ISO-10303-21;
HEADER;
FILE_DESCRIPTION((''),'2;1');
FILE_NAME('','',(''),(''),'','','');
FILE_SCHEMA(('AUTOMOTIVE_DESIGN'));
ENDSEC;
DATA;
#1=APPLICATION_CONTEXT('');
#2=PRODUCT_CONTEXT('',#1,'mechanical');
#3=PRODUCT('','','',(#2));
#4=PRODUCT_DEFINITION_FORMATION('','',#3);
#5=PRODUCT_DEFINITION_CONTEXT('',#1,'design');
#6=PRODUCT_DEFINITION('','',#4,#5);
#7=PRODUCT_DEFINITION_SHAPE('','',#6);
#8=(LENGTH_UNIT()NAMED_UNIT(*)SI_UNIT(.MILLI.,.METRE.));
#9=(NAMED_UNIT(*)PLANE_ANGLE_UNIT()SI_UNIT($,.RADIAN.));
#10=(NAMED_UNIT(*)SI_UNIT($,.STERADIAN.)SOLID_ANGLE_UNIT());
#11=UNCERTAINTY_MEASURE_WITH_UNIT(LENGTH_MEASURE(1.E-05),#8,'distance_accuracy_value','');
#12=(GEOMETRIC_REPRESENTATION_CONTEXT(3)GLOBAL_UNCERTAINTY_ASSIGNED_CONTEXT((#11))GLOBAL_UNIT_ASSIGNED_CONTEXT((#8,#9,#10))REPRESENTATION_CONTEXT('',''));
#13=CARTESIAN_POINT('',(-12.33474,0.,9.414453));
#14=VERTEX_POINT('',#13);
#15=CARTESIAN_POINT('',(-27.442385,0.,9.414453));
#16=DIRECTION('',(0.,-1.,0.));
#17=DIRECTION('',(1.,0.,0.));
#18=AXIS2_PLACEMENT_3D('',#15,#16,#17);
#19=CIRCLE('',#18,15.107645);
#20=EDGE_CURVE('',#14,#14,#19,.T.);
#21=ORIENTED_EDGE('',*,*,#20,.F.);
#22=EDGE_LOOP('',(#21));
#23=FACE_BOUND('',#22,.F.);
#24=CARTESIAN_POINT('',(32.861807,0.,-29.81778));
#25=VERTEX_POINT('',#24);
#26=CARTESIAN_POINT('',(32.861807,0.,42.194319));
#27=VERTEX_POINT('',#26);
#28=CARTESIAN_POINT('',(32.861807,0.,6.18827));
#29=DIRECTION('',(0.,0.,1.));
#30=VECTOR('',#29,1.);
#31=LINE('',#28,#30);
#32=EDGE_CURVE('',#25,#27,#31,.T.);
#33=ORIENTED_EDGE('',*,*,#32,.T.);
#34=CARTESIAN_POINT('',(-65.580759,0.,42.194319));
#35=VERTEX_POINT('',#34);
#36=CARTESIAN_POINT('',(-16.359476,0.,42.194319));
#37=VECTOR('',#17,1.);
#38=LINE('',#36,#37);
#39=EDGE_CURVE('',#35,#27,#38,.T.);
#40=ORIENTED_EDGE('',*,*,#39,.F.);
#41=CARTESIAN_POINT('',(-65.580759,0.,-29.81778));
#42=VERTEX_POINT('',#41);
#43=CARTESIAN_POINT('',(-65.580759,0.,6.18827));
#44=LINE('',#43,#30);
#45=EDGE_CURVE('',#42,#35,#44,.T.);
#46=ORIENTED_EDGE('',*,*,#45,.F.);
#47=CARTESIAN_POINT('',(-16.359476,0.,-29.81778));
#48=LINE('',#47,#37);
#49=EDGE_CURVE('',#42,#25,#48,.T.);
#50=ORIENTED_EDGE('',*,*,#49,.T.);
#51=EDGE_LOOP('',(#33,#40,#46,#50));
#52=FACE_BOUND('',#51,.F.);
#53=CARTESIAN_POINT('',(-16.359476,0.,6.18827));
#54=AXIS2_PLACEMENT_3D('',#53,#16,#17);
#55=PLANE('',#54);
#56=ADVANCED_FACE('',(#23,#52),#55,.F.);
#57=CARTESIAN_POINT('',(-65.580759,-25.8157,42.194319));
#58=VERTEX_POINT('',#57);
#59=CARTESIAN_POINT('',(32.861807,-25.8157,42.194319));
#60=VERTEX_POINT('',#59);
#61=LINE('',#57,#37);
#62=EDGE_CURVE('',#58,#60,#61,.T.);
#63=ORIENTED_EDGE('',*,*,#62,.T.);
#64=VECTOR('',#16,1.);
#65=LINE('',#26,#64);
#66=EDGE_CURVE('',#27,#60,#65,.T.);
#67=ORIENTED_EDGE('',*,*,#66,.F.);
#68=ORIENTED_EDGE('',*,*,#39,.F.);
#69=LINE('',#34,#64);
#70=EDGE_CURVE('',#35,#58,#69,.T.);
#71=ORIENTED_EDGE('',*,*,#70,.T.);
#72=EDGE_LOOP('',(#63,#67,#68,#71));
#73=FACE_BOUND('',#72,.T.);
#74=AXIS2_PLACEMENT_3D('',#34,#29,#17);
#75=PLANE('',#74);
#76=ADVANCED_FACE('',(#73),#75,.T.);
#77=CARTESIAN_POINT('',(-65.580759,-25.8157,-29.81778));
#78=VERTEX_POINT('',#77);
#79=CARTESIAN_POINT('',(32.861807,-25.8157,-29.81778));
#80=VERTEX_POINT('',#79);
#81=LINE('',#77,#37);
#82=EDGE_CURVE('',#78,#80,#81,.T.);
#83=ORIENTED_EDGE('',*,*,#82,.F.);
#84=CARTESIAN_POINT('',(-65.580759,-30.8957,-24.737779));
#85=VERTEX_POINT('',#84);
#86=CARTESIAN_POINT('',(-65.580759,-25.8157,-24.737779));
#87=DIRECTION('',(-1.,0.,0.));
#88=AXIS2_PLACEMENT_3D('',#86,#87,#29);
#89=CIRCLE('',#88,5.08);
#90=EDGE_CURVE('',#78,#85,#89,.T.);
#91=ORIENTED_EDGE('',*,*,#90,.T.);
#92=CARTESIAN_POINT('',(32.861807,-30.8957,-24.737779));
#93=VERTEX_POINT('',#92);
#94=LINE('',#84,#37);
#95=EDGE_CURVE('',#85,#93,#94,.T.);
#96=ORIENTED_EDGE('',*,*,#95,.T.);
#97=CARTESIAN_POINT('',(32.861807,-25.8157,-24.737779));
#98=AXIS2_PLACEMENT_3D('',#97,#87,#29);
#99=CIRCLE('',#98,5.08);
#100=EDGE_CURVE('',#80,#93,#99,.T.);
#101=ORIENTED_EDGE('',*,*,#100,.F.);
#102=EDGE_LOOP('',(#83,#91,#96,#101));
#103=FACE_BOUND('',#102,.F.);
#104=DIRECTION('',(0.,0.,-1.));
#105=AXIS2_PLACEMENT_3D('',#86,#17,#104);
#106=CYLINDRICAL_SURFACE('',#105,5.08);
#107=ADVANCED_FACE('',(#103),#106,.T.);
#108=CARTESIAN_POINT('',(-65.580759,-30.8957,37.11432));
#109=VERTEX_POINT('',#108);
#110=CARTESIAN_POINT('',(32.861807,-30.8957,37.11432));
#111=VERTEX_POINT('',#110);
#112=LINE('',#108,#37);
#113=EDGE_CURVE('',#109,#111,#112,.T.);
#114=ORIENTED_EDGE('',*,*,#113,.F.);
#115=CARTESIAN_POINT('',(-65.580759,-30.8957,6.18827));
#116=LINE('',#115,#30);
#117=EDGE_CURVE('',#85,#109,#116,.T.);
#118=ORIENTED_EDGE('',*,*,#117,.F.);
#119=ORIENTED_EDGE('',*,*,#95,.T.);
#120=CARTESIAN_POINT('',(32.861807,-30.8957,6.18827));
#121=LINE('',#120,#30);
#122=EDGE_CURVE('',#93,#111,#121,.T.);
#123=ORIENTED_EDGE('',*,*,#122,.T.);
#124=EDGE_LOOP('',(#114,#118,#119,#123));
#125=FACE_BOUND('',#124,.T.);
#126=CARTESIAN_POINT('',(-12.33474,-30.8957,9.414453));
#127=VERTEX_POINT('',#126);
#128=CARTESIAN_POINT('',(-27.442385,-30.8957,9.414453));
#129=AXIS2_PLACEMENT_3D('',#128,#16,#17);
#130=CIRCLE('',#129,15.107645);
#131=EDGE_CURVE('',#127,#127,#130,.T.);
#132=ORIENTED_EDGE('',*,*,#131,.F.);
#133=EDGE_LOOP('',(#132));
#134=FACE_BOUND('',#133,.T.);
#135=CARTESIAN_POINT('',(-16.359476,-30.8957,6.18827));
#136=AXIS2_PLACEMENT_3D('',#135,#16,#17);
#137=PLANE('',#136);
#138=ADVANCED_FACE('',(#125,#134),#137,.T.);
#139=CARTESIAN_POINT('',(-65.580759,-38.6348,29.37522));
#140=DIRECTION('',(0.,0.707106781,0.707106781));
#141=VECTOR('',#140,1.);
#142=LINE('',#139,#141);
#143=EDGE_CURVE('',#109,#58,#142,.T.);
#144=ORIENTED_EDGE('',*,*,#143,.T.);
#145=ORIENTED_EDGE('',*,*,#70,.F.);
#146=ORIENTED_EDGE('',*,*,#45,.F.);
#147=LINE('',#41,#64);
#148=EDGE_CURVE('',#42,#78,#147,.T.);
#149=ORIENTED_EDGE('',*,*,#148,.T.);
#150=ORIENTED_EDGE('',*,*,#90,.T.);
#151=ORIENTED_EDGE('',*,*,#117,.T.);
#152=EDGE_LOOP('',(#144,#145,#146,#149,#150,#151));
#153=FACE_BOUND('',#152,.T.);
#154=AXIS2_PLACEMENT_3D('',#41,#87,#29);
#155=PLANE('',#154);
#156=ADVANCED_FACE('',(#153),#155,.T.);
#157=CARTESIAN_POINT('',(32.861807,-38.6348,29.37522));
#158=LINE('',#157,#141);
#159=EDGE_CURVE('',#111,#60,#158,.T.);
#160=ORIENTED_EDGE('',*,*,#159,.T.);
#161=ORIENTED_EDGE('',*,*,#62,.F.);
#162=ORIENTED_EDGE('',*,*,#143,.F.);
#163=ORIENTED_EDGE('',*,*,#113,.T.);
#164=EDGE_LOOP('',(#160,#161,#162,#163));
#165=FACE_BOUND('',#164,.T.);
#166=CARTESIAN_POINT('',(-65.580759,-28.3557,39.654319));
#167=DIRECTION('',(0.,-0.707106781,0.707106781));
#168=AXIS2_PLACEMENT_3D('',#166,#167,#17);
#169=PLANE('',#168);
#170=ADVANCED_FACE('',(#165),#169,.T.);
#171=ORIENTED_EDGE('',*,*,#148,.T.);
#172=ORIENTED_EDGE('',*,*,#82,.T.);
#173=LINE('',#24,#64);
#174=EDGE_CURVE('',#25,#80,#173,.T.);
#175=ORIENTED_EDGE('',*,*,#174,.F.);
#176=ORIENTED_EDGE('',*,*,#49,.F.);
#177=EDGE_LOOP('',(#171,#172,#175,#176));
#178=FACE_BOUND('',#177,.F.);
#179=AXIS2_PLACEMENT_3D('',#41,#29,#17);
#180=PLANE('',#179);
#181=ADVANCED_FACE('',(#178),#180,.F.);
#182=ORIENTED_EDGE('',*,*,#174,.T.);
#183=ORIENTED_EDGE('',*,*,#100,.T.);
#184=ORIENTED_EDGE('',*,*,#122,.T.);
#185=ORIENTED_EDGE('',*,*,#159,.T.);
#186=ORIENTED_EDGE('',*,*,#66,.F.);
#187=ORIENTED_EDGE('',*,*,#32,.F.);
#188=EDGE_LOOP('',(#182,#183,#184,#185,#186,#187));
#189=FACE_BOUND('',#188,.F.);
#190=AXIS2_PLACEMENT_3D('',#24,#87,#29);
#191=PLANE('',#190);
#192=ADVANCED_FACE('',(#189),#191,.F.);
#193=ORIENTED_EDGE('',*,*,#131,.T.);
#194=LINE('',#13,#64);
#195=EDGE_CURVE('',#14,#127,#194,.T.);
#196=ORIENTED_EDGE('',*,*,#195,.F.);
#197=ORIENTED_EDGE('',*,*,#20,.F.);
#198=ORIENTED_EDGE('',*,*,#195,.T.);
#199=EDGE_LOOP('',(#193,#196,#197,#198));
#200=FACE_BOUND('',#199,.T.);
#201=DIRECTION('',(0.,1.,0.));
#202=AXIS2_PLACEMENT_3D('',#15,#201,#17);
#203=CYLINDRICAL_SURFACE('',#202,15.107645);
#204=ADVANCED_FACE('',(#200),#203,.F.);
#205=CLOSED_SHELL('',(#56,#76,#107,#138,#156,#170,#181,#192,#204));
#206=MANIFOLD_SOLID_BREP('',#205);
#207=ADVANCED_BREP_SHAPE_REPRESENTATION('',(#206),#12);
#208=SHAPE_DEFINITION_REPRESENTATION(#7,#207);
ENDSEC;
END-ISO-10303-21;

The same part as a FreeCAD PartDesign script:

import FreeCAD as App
import Part
import Sketcher
from FreeCAD import Vector
Q = App.Units.Quantity


def edges_at(feature, points):
    """Names of the edges that pass closest to the given points."""
    edges = feature.Shape.Edges
    near = lambda p: min(range(len(edges)), key=lambda i: edges[i].distToShape(Part.Vertex(*p))[0])
    return sorted({f"Edge{near(p) + 1}" for p in points})


def add_polygon(sketch, points):
    """Adds a closed chain of lines whose ends are joined by coincident constraints."""
    first, n = sketch.GeometryCount, len(points)
    for a, b in zip(points, points[1:] + points[:1]):
        sketch.addGeometry(Part.LineSegment(App.Vector(*a, 0), App.Vector(*b, 0)), False)
    for i in range(n):
        sketch.addConstraint(Sketcher.Constraint("Coincident", first + i, 2, first + (i + 1) % n, 1))

doc = App.newDocument("Part")
body = doc.addObject("PartDesign::Body", "Body")

sketch1 = doc.addObject("Sketcher::SketchObject", "Sketch")
body.addObject(sketch1)
sketch1.AttachmentSupport = (doc.XZ_Plane, [""])
sketch1.MapMode = "FlatFace"
add_polygon(sketch1, [(-66, 42), (-66, -30), (33, -30), (33, 42)])
sketch1.addGeometry(Part.Circle(Vector(-27, 9, 0), Vector(0, 0, 1), 15), False)
sketch1.addConstraint([
    Sketcher.Constraint("Vertical", 0),
    Sketcher.Constraint("Horizontal", 1),
    Sketcher.Constraint("Vertical", 2),
    Sketcher.Constraint("Horizontal", 3),
    Sketcher.Constraint("Diameter", 4, Q("30.21529 mm")),
    Sketcher.Constraint("DistanceY", 0, 2, 0, 1, Q("72.012099 mm")),
    Sketcher.Constraint("DistanceX", 1, 1, 1, 2, Q("98.442565 mm")),
    Sketcher.Constraint("DistanceX", 0, 2, -1, 1, Q("65.580759 mm")),
    Sketcher.Constraint("DistanceY", 0, 2, -1, 1, Q("29.81778 mm")),
    Sketcher.Constraint("DistanceX", 4, 3, 1, 2, Q("60.304192 mm")),
    Sketcher.Constraint("DistanceY", -1, 1, 4, 3, Q("9.414453 mm")),
])
pad1 = doc.addObject("PartDesign::Pad", "Pad")
body.addObject(pad1)
pad1.Profile = sketch1
pad1.Length = 30.8957
doc.recompute()

fillet = doc.addObject("PartDesign::Fillet", "Fillet")
body.addObject(fillet)
fillet.Base = (pad1, edges_at(pad1, [(-16.359, -30.896, -29.818)]))
fillet.Radius = Q("0.2 in")
doc.recompute()

chamfer = doc.addObject("PartDesign::Chamfer", "Chamfer")
body.addObject(chamfer)
chamfer.Base = (fillet, edges_at(fillet, [(-16.359, -30.896, 42.194)]))
chamfer.Size = Q("0.2 in")

doc.recompute()
